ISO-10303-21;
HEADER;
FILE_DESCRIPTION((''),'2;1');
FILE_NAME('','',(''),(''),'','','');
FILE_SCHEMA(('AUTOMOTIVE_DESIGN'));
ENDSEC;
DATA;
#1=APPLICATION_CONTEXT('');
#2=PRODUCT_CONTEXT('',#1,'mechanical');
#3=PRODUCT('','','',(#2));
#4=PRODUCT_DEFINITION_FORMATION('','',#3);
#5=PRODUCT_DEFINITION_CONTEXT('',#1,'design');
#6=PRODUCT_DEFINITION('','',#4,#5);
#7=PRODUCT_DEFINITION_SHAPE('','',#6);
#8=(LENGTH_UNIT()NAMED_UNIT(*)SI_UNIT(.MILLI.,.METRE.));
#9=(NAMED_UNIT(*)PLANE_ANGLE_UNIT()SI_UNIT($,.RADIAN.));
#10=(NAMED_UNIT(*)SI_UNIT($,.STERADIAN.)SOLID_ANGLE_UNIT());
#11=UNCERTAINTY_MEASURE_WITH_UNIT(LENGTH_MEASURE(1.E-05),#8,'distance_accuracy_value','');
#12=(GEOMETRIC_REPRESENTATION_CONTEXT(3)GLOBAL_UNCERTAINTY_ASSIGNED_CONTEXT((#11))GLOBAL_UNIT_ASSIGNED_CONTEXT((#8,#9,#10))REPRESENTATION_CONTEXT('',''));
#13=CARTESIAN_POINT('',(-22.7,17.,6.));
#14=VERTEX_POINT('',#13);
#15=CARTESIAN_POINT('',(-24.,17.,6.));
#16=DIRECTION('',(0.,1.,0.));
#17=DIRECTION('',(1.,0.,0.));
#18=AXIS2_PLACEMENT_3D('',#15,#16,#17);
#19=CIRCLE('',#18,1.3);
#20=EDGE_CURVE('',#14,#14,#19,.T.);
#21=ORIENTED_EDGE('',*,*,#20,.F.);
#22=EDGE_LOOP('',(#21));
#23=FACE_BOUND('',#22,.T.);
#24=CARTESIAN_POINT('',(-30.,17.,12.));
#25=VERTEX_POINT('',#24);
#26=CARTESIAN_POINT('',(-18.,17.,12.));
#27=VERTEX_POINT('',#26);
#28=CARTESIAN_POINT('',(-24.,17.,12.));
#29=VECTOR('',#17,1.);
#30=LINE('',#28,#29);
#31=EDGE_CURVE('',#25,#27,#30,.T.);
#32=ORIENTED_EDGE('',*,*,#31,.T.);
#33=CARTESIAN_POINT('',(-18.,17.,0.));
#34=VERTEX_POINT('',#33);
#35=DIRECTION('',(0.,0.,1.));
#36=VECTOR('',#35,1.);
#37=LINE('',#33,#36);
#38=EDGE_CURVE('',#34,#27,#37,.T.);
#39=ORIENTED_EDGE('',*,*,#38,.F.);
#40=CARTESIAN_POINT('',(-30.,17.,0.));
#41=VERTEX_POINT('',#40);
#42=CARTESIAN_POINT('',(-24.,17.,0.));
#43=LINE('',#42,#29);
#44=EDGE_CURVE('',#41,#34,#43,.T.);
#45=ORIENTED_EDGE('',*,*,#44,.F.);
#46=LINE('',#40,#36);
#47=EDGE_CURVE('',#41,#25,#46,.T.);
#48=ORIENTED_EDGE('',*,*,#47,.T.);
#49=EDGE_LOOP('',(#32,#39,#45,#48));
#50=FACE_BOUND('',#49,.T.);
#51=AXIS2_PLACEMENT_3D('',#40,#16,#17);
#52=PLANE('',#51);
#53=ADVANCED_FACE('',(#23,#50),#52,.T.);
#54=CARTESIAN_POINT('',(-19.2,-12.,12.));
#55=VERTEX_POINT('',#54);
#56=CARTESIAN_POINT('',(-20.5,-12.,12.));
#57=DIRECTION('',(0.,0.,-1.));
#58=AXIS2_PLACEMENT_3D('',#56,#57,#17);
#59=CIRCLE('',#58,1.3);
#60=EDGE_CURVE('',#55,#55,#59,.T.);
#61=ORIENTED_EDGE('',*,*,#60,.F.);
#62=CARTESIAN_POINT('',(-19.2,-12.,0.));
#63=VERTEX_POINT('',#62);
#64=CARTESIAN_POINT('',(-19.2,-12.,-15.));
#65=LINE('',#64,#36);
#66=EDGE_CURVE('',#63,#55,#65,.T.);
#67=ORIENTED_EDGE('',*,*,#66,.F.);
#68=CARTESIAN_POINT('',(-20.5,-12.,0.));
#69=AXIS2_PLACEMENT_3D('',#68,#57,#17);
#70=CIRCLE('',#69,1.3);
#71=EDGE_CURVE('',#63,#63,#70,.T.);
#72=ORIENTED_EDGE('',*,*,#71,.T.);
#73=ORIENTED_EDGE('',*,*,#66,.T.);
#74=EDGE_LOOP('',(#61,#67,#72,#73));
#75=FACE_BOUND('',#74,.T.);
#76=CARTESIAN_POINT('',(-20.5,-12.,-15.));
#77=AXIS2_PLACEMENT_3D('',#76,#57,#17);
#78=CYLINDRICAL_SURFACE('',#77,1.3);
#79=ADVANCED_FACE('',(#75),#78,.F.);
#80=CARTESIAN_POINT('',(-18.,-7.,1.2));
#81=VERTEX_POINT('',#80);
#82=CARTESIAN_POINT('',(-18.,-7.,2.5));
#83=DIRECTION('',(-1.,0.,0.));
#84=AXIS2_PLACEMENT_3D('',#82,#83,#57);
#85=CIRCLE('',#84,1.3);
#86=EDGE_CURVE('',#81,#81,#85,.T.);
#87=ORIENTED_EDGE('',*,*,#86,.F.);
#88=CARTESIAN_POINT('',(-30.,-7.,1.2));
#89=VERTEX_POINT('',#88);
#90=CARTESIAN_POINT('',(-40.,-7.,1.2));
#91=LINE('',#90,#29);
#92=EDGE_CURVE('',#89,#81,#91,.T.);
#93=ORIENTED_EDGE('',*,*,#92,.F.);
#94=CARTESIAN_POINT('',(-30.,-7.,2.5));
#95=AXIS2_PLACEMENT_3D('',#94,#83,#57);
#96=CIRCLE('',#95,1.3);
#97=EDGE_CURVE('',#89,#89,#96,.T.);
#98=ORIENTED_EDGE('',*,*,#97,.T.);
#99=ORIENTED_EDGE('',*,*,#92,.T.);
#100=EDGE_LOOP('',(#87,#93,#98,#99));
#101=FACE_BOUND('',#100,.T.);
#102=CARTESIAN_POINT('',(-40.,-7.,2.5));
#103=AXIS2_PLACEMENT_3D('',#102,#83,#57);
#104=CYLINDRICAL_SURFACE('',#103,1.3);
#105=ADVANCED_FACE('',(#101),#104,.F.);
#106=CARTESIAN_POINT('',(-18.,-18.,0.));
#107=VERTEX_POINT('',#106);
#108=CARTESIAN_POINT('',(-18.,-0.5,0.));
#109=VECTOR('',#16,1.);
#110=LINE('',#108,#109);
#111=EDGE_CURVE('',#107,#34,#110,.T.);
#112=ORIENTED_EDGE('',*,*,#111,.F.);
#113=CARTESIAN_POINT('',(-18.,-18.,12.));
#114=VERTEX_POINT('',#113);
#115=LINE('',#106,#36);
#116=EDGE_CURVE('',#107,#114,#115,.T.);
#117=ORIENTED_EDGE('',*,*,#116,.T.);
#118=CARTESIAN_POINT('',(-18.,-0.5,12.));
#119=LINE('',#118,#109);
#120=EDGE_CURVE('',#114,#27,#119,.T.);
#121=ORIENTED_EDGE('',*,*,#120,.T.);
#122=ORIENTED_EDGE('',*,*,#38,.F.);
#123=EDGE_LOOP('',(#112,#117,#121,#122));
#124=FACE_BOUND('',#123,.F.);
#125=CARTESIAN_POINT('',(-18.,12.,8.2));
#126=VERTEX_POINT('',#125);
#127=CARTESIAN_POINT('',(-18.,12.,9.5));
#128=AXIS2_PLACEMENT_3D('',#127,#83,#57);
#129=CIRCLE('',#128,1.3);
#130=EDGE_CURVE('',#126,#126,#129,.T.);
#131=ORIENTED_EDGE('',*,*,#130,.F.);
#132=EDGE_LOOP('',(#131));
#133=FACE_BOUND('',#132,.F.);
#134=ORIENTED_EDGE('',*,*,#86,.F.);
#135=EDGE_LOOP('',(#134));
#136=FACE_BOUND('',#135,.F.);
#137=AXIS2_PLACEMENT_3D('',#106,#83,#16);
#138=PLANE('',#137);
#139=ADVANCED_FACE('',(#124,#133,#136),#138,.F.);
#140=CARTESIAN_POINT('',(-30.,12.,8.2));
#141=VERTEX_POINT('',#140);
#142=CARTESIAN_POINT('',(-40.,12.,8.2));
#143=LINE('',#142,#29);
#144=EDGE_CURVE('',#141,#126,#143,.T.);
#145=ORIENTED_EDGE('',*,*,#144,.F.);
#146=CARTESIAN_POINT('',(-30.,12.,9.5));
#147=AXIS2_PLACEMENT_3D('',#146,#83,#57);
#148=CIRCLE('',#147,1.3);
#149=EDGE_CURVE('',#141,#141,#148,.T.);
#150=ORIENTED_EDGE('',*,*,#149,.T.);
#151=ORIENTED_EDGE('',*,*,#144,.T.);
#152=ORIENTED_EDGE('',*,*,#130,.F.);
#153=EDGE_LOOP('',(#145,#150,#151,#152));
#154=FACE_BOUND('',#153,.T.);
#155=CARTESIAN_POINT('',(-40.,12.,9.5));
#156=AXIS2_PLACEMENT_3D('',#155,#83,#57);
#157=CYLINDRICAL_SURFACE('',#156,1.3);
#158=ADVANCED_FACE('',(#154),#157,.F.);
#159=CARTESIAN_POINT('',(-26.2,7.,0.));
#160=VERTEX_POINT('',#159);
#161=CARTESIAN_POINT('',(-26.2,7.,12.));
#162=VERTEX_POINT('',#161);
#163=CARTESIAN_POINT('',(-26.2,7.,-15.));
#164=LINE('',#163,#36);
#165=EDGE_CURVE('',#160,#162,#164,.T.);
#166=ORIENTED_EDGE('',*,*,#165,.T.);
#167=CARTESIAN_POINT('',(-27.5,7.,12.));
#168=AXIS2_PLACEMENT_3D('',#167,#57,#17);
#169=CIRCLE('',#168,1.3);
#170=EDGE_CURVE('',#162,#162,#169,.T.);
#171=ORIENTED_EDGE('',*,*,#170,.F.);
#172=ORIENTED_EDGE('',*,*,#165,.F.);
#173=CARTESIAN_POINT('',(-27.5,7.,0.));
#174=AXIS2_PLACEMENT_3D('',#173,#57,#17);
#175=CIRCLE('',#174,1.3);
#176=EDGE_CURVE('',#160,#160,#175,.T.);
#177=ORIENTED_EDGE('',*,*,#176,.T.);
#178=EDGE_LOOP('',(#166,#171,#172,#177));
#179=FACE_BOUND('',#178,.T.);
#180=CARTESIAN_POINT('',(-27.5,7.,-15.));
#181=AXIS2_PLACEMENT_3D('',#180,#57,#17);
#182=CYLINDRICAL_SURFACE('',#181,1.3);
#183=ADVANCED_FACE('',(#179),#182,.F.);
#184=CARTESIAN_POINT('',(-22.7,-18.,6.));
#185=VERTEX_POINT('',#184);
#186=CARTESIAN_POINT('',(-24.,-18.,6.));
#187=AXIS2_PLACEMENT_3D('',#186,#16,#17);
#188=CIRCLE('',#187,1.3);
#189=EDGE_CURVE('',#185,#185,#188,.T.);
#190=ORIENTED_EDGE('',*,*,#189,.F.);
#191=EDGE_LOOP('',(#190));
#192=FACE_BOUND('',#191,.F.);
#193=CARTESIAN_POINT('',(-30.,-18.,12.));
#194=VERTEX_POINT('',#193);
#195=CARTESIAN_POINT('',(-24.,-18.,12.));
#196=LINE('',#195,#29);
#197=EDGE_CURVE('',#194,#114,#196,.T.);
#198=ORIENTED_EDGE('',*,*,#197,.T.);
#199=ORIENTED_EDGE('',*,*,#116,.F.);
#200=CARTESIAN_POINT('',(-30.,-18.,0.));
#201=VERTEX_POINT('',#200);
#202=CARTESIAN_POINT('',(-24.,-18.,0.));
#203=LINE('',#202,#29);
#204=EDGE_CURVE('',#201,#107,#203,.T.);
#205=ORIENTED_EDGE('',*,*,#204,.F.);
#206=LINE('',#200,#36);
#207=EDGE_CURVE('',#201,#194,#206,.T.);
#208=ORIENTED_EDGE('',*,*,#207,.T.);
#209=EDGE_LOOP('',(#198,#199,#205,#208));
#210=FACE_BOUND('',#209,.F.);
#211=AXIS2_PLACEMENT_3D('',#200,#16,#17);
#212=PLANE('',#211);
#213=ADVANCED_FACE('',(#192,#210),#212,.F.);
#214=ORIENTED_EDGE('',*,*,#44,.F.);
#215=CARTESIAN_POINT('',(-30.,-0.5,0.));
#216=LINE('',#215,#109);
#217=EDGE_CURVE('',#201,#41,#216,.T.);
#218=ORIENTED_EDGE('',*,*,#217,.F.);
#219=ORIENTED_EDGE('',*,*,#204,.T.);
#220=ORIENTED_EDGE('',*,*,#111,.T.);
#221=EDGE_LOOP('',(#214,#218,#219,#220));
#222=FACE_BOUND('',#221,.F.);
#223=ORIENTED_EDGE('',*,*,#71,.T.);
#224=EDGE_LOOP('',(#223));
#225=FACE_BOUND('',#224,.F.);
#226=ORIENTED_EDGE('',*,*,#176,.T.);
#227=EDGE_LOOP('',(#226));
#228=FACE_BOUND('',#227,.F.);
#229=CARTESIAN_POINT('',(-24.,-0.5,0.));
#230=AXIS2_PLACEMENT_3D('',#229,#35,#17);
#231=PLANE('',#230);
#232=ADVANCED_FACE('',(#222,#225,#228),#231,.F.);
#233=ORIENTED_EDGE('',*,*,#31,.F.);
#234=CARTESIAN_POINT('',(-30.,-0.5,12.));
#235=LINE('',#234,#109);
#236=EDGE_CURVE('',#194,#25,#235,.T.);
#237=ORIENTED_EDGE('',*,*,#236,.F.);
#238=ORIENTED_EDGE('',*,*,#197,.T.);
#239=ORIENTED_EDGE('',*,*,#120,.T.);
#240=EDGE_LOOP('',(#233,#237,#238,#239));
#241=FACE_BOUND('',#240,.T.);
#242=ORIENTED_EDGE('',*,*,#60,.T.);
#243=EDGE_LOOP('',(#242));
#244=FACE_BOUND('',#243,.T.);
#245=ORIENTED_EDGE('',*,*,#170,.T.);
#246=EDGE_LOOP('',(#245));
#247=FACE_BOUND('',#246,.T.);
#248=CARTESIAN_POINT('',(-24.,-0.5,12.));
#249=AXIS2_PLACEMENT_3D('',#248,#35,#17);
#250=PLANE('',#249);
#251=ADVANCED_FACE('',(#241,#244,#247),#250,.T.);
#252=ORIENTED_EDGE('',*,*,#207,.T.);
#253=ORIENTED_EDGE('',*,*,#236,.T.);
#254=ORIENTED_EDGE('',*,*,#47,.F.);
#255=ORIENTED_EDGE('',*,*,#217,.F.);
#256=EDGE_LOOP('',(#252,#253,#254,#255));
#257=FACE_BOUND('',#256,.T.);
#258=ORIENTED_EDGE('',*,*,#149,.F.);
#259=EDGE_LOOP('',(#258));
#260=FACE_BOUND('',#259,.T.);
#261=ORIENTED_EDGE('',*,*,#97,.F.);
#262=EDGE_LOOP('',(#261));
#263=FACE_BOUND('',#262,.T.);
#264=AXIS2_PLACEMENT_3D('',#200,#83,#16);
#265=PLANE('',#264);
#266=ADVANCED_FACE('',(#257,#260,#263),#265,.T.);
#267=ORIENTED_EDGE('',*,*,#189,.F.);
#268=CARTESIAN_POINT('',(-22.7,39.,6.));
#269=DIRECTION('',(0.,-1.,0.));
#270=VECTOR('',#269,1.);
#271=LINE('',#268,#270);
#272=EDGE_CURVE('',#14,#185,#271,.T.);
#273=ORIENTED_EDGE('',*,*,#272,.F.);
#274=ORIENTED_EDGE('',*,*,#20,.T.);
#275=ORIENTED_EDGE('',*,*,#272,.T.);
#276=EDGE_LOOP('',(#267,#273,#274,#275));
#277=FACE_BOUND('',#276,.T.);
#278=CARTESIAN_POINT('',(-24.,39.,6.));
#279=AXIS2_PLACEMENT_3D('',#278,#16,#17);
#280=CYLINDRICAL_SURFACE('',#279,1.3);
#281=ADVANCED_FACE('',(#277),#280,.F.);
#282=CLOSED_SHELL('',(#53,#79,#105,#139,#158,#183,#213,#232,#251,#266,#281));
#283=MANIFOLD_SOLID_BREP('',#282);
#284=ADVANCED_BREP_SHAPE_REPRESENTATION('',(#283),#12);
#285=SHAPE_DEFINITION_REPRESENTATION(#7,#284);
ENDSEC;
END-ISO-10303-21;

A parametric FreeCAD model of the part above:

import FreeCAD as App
import Part
import Sketcher

V = App.Vector
Q = App.Units.Quantity


def add_polygon(sketch, points):
    """Adds a closed chain of lines whose ends are joined by coincident constraints."""
    first, n = sketch.GeometryCount, len(points)
    for a, b in zip(points, points[1:] + points[:1]):
        sketch.addGeometry(Part.LineSegment(App.Vector(*a, 0), App.Vector(*b, 0)), False)
    for i in range(n):
        sketch.addConstraint(Sketcher.Constraint("Coincident", first + i, 2, first + (i + 1) % n, 1))

doc = App.newDocument("Part")
body = doc.addObject("PartDesign::Body", "Body")

# Sketch on XY plane
sketch1 = body.newObject("Sketcher::SketchObject", "Sketch")
sketch1.AttachmentSupport = (doc.getObject("XY_Plane"), [""])
sketch1.MapMode = "FlatFace"
sketch1.addGeometry(Part.Circle(V(0, 0, 0), V(0, 0, 1), 1.3), False)
sketch1.addConstraint([
    Sketcher.Constraint("Coincident", 0, 3, -1, 1),
    Sketcher.Constraint("Diameter", 0, Q("2.6 mm")),
])
pad1 = body.newObject("PartDesign::Pad", "Pad")
pad1.Profile = sketch1
pad1.Length = 40
body2 = doc.addObject("PartDesign::Body", "Body001")
doc.recompute()

body.Placement = App.Placement(V(0, 0, 0), App.Rotation(V(0, 1, 0), 90))
boolean = body2.newObject("PartDesign::Boolean", "Boolean")
boolean.Type = "Fuse"
boolean.addObjects([body])
body3 = doc.addObject("PartDesign::Body", "Body002")
doc.recompute()

body2.Placement = App.Placement(V(-40, 12, 9.5), App.Rotation(V(0, 0, 1), 0))
boolean2 = body3.newObject("PartDesign::Boolean", "Boolean001")
boolean2.Type = "Fuse"
boolean2.addObjects([body2])
body4 = doc.addObject("PartDesign::Body", "Body003")

# Sketch on XY plane
sketch2 = body4.newObject("Sketcher::SketchObject", "Sketch001")
sketch2.AttachmentSupport = (doc.getObject("XY_Plane003"), [""])
sketch2.MapMode = "FlatFace"
sketch2.addGeometry(Part.Circle(V(0, 0, 0), V(0, 0, 1), 1.3), False)
sketch2.addConstraint([
    Sketcher.Constraint("Coincident", 0, 3, -1, 1),
    Sketcher.Constraint("Diameter", 0, Q("2.6 mm")),
])
pad2 = body4.newObject("PartDesign::Pad", "Pad001")
pad2.Profile = sketch2
pad2.Length = 40
body5 = doc.addObject("PartDesign::Body", "Body004")
doc.recompute()

body4.Placement = App.Placement(V(0, 0, 0), App.Rotation(V(0, 1, 0), 90))
boolean3 = body5.newObject("PartDesign::Boolean", "Boolean002")
boolean3.Type = "Fuse"
boolean3.addObjects([body4])
body6 = doc.addObject("PartDesign::Body", "Body005")
body6.AllowCompound = True
doc.recompute()

body5.Placement = App.Placement(V(-40, -7, 2.5), App.Rotation(V(0, 0, 1), 0))
boolean4 = body6.newObject("PartDesign::Boolean", "Boolean003")
boolean4.Type = "Fuse"
boolean4.addObjects([body5])
doc.recompute()

boolean5 = body6.newObject("PartDesign::Boolean", "Boolean004")
boolean5.Type = "Fuse"
boolean5.addObjects([body3])
body7 = doc.addObject("PartDesign::Body", "Body006")

# Sketch on XY plane
sketch3 = body7.newObject("Sketcher::SketchObject", "Sketch002")
sketch3.AttachmentSupport = (doc.getObject("XY_Plane006"), [""])
sketch3.MapMode = "FlatFace"
sketch3.addGeometry(Part.Circle(V(0, 0, 0), V(0, 0, 1), 1.3), False)
sketch3.addConstraint([
    Sketcher.Constraint("Coincident", 0, 3, -1, 1),
    Sketcher.Constraint("Diameter", 0, Q("2.6 mm")),
])
pad3 = body7.newObject("PartDesign::Pad", "Pad002")
pad3.Profile = sketch3
pad3.Length = 70
body8 = doc.addObject("PartDesign::Body", "Body007")
doc.recompute()

body7.Placement = App.Placement(V(0, 0, 0), App.Rotation(V(1, 0, 0), 90))
boolean6 = body8.newObject("PartDesign::Boolean", "Boolean005")
boolean6.Type = "Fuse"
boolean6.addObjects([body7])
body9 = doc.addObject("PartDesign::Body", "Body008")
body9.AllowCompound = True
doc.recompute()

body8.Placement = App.Placement(V(-24, 39, 6), App.Rotation(V(0, 0, 1), 0))
boolean7 = body9.newObject("PartDesign::Boolean", "Boolean006")
boolean7.Type = "Fuse"
boolean7.addObjects([body8])
doc.recompute()

boolean8 = body9.newObject("PartDesign::Boolean", "Boolean007")
boolean8.Type = "Fuse"
boolean8.addObjects([body6])
body10 = doc.addObject("PartDesign::Body", "Body009")
body10.AllowCompound = True

# Sketch on XY plane
sketch4 = body10.newObject("Sketcher::SketchObject", "Sketch003")
sketch4.AttachmentSupport = (doc.getObject("XY_Plane009"), [""])
sketch4.MapMode = "FlatFace"
sketch4.AttachmentOffset = App.Placement(V(0, 0, -15), App.Rotation())
sketch4.addGeometry(Part.Circle(V(-27.5, 7, 0), V(0, 0, 1), 1.3), False)
sketch4.addConstraint([
    Sketcher.Constraint("Diameter", 0, Q("2.6 mm")),
    Sketcher.Constraint("DistanceY", -1, 1, 0, 3, Q("7 mm")),
    Sketcher.Constraint("DistanceX", 0, 3, -1, 1, Q("27.5 mm")),
])
pad4 = body10.newObject("PartDesign::Pad", "Pad003")
pad4.Profile = sketch4
pad4.Length = 40
doc.recompute()

boolean9 = body10.newObject("PartDesign::Boolean", "Boolean008")
boolean9.Type = "Fuse"
boolean9.addObjects([body9])
body11 = doc.addObject("PartDesign::Body", "Body010")
body11.AllowCompound = True

# Sketch on XY plane
sketch5 = body11.newObject("Sketcher::SketchObject", "Sketch004")
sketch5.AttachmentSupport = (doc.getObject("XY_Plane010"), [""])
sketch5.MapMode = "FlatFace"
sketch5.AttachmentOffset = App.Placement(V(0, 0, -15), App.Rotation())
sketch5.addGeometry(Part.Circle(V(-20.5, -12, 0), V(0, 0, 1), 1.3), False)
sketch5.addConstraint([
    Sketcher.Constraint("Diameter", 0, Q("2.6 mm")),
    Sketcher.Constraint("DistanceY", 0, 3, -1, 1, Q("12 mm")),
    Sketcher.Constraint("DistanceX", 0, 3, -1, 1, Q("20.5 mm")),
])
pad5 = body11.newObject("PartDesign::Pad", "Pad004")
pad5.Profile = sketch5
pad5.Length = 40
doc.recompute()

boolean10 = body11.newObject("PartDesign::Boolean", "Boolean009")
boolean10.Type = "Fuse"
boolean10.addObjects([body10])
body12 = doc.addObject("PartDesign::Body", "Body011")

# Sketch on XY plane
sketch6 = body12.newObject("Sketcher::SketchObject", "Sketch005")
sketch6.AttachmentSupport = (doc.getObject("XY_Plane011"), [""])
sketch6.MapMode = "FlatFace"
add_polygon(sketch6, [(-30, 17), (-30, -18), (-18, -18), (-18, 17)])  # lines 0-3
sketch6.addConstraint([
    Sketcher.Constraint("Vertical", 0),
    Sketcher.Constraint("Horizontal", 1),
    Sketcher.Constraint("Vertical", 2),
    Sketcher.Constraint("Horizontal", 3),
    Sketcher.Constraint("DistanceX", 1, 1, 1, 2, Q("12 mm")),
    Sketcher.Constraint("DistanceY", 0, 2, 0, 1, Q("35 mm")),
    Sketcher.Constraint("DistanceX", 0, 2, -1, 1, Q("30 mm")),
    Sketcher.Constraint("DistanceY", 0, 2, -1, 1, Q("18 mm")),
])
pad6 = body12.newObject("PartDesign::Pad", "Pad005")
pad6.Profile = sketch6
pad6.Length = 12
doc.recompute()

boolean11 = body12.newObject("PartDesign::Boolean", "Boolean010")
boolean11.Type = "Cut"
boolean11.addObjects([body11])

doc.recompute()
